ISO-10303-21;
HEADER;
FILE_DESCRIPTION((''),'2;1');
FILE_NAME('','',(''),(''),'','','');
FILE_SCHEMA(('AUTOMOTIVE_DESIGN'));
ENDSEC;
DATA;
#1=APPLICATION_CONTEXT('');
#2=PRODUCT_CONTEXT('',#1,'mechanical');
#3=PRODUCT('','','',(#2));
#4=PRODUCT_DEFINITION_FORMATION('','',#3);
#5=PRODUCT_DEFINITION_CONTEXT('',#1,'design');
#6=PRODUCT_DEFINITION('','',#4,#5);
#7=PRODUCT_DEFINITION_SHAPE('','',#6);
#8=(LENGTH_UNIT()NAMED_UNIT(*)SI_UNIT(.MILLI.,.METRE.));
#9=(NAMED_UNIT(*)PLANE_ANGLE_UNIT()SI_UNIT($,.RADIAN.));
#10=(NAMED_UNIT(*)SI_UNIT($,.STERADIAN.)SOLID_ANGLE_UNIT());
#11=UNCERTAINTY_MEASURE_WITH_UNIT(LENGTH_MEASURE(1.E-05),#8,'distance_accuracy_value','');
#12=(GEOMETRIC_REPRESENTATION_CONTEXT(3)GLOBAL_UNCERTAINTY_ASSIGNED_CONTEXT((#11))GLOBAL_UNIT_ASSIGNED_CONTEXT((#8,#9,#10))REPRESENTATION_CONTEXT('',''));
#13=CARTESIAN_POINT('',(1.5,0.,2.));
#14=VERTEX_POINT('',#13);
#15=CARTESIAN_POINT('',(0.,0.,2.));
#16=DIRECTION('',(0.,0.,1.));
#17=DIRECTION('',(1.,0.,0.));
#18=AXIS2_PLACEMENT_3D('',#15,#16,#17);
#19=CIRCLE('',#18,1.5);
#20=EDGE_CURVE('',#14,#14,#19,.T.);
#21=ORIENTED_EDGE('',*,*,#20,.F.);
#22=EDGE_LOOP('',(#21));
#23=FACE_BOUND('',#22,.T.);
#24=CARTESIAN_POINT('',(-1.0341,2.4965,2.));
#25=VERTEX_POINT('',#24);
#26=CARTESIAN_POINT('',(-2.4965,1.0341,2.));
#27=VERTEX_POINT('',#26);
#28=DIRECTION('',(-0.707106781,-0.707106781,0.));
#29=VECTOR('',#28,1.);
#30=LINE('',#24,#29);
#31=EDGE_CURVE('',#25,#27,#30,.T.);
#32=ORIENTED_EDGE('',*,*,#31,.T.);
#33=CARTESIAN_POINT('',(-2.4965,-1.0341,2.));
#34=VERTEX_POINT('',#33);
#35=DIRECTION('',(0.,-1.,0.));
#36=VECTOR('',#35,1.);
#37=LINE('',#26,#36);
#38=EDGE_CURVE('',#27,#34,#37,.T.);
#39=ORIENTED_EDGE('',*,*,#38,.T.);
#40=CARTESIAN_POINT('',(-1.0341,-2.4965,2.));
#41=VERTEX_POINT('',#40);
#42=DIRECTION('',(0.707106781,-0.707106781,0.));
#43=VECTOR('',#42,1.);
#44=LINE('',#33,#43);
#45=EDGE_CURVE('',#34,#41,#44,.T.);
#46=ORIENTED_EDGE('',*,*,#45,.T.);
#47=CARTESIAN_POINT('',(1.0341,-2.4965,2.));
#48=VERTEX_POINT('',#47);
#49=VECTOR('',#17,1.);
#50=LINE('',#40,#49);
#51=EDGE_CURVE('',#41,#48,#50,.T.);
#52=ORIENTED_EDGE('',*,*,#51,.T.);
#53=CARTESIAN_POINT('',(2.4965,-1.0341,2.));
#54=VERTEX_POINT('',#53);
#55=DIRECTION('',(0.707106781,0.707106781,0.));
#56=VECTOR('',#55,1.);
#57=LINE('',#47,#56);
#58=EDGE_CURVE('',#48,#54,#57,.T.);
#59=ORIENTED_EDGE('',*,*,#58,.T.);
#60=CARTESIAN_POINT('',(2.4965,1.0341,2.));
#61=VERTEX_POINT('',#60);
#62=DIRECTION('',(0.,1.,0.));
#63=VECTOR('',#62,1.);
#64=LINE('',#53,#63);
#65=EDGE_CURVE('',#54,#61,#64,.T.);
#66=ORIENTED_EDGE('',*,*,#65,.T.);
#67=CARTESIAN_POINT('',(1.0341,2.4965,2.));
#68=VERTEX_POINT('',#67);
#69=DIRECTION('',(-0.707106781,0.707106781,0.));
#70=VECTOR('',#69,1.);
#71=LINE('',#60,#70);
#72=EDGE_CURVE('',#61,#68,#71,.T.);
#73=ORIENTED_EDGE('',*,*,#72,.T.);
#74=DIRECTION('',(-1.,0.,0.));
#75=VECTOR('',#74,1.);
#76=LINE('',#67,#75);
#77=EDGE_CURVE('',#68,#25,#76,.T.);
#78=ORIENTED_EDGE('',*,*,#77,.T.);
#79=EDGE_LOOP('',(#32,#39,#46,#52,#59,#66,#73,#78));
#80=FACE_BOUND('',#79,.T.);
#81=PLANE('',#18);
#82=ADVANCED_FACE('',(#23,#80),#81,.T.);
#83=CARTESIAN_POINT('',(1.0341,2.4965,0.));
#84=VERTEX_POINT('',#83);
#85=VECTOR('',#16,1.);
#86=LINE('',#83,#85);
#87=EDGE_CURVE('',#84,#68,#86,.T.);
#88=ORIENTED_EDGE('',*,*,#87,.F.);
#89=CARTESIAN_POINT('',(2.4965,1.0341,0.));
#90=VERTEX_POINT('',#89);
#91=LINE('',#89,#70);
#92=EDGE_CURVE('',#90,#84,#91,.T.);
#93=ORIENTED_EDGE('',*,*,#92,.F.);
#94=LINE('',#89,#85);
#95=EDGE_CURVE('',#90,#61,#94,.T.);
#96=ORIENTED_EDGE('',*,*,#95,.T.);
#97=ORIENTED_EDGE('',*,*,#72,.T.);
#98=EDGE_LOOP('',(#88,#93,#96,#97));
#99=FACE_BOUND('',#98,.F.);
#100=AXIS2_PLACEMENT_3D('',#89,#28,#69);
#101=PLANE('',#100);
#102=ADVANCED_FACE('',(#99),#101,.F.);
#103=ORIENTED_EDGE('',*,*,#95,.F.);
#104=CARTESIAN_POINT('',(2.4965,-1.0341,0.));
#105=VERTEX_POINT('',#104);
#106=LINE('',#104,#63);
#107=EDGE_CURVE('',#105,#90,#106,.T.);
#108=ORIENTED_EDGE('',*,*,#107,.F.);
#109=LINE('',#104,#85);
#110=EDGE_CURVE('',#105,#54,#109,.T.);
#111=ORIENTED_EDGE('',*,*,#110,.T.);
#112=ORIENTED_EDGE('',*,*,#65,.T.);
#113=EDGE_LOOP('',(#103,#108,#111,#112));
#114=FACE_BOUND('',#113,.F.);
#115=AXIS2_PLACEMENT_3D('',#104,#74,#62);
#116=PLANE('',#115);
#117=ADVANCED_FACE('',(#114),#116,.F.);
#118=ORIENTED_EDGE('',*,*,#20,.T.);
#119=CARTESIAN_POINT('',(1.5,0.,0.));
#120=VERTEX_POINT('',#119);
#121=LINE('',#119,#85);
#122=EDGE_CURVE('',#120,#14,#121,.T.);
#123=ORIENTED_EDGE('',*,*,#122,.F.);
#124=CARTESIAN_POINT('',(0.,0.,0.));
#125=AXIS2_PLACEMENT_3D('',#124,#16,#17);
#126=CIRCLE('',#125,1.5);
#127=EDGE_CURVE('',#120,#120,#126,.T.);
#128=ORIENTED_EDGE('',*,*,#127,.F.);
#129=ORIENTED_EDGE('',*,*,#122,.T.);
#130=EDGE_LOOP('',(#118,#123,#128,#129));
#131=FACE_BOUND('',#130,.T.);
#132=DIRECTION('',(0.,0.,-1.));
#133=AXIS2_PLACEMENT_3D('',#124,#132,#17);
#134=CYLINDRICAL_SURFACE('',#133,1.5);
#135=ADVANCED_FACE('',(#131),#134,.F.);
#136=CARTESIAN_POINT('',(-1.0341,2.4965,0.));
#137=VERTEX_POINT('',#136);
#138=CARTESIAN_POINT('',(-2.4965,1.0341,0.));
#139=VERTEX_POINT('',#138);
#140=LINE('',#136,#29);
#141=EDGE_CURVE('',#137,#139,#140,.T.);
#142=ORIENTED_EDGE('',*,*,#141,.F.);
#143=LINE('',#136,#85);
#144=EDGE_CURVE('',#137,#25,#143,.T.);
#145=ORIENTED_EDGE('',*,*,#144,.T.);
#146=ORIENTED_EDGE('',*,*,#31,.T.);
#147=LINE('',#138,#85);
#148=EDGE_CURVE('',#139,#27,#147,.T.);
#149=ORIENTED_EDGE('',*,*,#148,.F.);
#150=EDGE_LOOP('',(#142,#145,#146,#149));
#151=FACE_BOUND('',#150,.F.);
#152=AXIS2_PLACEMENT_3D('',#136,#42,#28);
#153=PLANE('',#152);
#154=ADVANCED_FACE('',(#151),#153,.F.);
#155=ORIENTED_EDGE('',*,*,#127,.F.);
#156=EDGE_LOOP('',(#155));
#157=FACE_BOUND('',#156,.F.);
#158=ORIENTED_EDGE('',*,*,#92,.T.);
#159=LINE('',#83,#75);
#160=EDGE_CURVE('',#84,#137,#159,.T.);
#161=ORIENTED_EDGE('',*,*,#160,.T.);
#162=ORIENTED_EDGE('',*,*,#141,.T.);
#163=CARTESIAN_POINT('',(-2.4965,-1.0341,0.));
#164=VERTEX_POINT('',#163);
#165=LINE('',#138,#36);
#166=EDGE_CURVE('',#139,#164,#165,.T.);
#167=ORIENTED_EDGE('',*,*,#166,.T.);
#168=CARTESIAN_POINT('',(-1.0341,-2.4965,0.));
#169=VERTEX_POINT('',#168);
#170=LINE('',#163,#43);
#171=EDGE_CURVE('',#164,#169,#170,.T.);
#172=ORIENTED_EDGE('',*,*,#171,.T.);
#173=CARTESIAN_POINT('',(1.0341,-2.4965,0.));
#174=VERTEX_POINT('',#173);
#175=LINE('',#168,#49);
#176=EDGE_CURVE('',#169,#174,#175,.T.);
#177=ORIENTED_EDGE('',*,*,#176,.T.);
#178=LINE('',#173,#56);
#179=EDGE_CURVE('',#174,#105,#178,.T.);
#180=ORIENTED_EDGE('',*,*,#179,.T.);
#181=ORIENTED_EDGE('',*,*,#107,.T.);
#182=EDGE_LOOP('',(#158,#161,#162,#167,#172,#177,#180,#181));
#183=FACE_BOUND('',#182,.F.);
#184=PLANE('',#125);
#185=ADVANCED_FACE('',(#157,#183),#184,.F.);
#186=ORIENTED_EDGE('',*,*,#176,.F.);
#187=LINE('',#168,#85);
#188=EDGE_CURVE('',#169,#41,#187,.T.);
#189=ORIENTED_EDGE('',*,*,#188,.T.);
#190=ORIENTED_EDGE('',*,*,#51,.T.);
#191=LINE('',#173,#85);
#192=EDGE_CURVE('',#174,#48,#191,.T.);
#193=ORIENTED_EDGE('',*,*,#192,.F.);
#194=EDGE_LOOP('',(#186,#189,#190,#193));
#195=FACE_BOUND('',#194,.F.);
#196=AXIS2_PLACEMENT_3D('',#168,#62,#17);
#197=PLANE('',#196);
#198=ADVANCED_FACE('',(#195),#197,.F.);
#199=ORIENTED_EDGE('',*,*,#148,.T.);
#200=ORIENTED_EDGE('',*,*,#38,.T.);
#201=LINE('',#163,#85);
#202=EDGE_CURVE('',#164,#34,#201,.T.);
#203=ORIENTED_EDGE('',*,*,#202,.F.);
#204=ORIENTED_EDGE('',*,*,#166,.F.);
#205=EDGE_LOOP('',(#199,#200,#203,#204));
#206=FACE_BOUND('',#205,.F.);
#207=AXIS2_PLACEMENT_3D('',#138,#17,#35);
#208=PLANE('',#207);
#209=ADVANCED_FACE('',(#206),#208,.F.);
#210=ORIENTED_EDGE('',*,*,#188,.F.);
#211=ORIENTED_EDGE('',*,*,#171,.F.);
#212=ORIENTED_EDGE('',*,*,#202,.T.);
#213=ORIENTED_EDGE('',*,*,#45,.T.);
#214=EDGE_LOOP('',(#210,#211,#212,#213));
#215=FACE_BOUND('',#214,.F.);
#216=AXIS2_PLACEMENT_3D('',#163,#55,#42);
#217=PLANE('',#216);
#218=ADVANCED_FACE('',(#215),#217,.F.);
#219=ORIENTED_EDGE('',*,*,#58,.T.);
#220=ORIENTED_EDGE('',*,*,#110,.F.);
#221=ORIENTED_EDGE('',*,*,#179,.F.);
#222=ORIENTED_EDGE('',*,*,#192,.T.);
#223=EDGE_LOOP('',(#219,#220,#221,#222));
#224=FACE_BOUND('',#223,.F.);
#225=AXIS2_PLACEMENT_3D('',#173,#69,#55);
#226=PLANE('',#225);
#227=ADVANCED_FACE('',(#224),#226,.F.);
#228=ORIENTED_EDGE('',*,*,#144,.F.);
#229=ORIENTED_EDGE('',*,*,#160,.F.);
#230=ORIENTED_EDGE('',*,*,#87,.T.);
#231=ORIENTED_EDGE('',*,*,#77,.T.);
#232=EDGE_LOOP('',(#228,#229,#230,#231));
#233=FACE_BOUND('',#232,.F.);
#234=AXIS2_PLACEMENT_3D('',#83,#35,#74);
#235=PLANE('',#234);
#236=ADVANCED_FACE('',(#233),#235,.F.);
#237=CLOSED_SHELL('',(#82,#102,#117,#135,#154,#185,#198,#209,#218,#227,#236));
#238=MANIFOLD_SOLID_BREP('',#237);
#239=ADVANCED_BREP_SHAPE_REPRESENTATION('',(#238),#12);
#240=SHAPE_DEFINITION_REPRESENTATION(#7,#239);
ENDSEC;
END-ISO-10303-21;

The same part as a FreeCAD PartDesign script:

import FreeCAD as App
import Part
import Sketcher

doc = App.newDocument("Part")
body = doc.addObject("PartDesign::Body", "Body")

# Sketch on XY plane
sketch1 = body.newObject("Sketcher::SketchObject", "Sketch")
sketch1.AttachmentSupport = (doc.getObject("XY_Plane"), [""])
sketch1.MapMode = "FlatFace"
sketch1.addGeometry(Part.LineSegment(App.Vector(1, 2.5, 0), App.Vector(-1, 2.5, 0)), False)
sketch1.addGeometry(Part.LineSegment(App.Vector(-1, 2.5, 0), App.Vector(-2.5, 1, 0)), False)
sketch1.addGeometry(Part.LineSegment(App.Vector(-2.5, 1, 0), App.Vector(-2.5, -1, 0)), False)
sketch1.addGeometry(Part.LineSegment(App.Vector(-2.5, -1, 0), App.Vector(-1, -2.5, 0)), False)
sketch1.addGeometry(Part.LineSegment(App.Vector(-1, -2.5, 0), App.Vector(1, -2.5, 0)), False)
sketch1.addGeometry(Part.LineSegment(App.Vector(1, -2.5, 0), App.Vector(2.5, -1, 0)), False)
sketch1.addGeometry(Part.LineSegment(App.Vector(2.5, -1, 0), App.Vector(2.5, 1, 0)), False)
sketch1.addGeometry(Part.LineSegment(App.Vector(2.5, 1, 0), App.Vector(1, 2.5, 0)), False)
sketch1.addGeometry(Part.Circle(App.Vector(0, 0, 0), App.Vector(0, 0, 1), 1.5), False)
sketch1.addConstraint(Sketcher.Constraint("Coincident", 0, 2, 1, 1))
sketch1.addConstraint(Sketcher.Constraint("Coincident", 1, 2, 2, 1))
sketch1.addConstraint(Sketcher.Constraint("Coincident", 2, 2, 3, 1))
sketch1.addConstraint(Sketcher.Constraint("Coincident", 3, 2, 4, 1))
sketch1.addConstraint(Sketcher.Constraint("Coincident", 4, 2, 5, 1))
sketch1.addConstraint(Sketcher.Constraint("Coincident", 5, 2, 6, 1))
sketch1.addConstraint(Sketcher.Constraint("Coincident", 6, 2, 7, 1))
sketch1.addConstraint(Sketcher.Constraint("Coincident", 7, 2, 0, 1))
sketch1.addConstraint(Sketcher.Constraint("Horizontal", 0))
sketch1.addConstraint(Sketcher.Constraint("Vertical", 2))
sketch1.addConstraint(Sketcher.Constraint("Horizontal", 4))
sketch1.addConstraint(Sketcher.Constraint("Vertical", 6))
sketch1.addConstraint(Sketcher.Constraint("Coincident", 8, 3, -1, 1))
sketch1.addConstraint(Sketcher.Constraint("Symmetric", 0, 2, 4, 2, -1, 1))
sketch1.addConstraint(Sketcher.Constraint("Symmetric", 1, 2, 5, 2, -1, 1))
sketch1.addConstraint(Sketcher.Constraint("Perpendicular", 1, 3))
sketch1.addConstraint(Sketcher.Constraint("Perpendicular", 5, 7))
sketch1.addConstraint(Sketcher.Constraint("Horizontal", 2, 2, 5, 2))
sketch1.addConstraint(Sketcher.Constraint("Horizontal", 1, 2, 6, 2))
sketch1.addConstraint(Sketcher.Constraint("Vertical", 0, 2, 3, 2))
sketch1.addConstraint(Sketcher.Constraint("Equal", 4, 2))
sketch1.addConstraint(Sketcher.Constraint("Diameter", 8, 3.0))
sketch1.addConstraint(Sketcher.Constraint("DistanceX", 0, 2, 0, 1, 2.0682))
sketch1.addConstraint(Sketcher.Constraint("DistanceY", 3, 2, 0, 2, 4.993))
pad1 = body.newObject("PartDesign::Pad", "Pad")
pad1.Profile = sketch1
pad1.Length = 2

doc.recompute()
